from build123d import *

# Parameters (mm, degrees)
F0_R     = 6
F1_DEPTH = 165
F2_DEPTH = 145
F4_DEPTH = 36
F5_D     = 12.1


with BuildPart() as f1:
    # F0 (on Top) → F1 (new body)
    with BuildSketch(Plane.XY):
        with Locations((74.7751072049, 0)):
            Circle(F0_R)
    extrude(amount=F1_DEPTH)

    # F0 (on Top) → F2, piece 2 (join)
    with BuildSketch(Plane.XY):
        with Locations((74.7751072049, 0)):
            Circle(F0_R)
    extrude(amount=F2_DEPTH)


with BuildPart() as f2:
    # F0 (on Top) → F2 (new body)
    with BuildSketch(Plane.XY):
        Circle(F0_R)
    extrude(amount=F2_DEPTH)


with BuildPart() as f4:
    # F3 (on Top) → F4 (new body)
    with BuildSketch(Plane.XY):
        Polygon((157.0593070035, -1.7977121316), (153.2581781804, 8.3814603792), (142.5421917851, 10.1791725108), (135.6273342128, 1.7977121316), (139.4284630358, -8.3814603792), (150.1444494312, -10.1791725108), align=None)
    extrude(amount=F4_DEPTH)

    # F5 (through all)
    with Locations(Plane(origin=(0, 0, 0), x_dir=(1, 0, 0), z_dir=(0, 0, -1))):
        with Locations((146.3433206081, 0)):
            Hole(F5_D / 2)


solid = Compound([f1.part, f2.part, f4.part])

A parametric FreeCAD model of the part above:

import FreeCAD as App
import Part
import Sketcher
from FreeCAD import Vector
Q = App.Units.Quantity

doc = App.newDocument("Part")
body = doc.addObject("PartDesign::Body", "Body")

# Sketch on XY plane
sketch1 = body.newObject("Sketcher::SketchObject", "Sketch")
sketch1.AttachmentSupport = (doc.getObject("XY_Plane"), [""])
sketch1.MapMode = "FlatFace"
sketch1.addGeometry(Part.Circle(Vector(75, 0, 0), Vector(0, 0, 1), 6), False)
sketch1.addConstraint(Sketcher.Constraint("PointOnObject", 0, 3, -1))
sketch1.addConstraint(Sketcher.Constraint("Diameter", 0, Q("12 mm")))
sketch1.addConstraint(Sketcher.Constraint("DistanceX", -1, 1, 0, 3, Q("74.775107 mm")))
pad1 = body.newObject("PartDesign::Pad", "Pad")
pad1.Profile = sketch1
pad1.Length = 165

# Sketch on XY plane
sketch2 = body.newObject("Sketcher::SketchObject", "Sketch001")
sketch2.AttachmentSupport = (doc.getObject("XY_Plane"), [""])
sketch2.MapMode = "FlatFace"
sketch2.addGeometry(Part.Circle(Vector(75, 0, 0), Vector(0, 0, 1), 6), False)
sketch2.addConstraint(Sketcher.Constraint("PointOnObject", 0, 3, -1))
sketch2.addConstraint(Sketcher.Constraint("Diameter", 0, Q("12 mm")))
sketch2.addConstraint(Sketcher.Constraint("DistanceX", -1, 1, 0, 3, Q("74.775107 mm")))
pad2 = body.newObject("PartDesign::Pad", "Pad001")
pad2.Profile = sketch2
pad2.Length = 145
body2 = doc.addObject("PartDesign::Body", "Body001")

# Sketch on XY plane
sketch3 = body2.newObject("Sketcher::SketchObject", "Sketch002")
sketch3.AttachmentSupport = (doc.getObject("XY_Plane001"), [""])
sketch3.MapMode = "FlatFace"
sketch3.addGeometry(Part.Circle(Vector(0, 0, 0), Vector(0, 0, 1), 6), False)
sketch3.addConstraint(Sketcher.Constraint("Coincident", 0, 3, -1, 1))
sketch3.addConstraint(Sketcher.Constraint("Diameter", 0, Q("12 mm")))
pad3 = body2.newObject("PartDesign::Pad", "Pad002")
pad3.Profile = sketch3
pad3.Length = 145
body3 = doc.addObject("PartDesign::Body", "Body002")

# Sketch on XY plane
sketch4 = body3.newObject("Sketcher::SketchObject", "Sketch003")
sketch4.AttachmentSupport = (doc.getObject("XY_Plane002"), [""])
sketch4.MapMode = "FlatFace"
sketch4.addGeometry(Part.LineSegment(Vector(157, -2, 0), Vector(153, 8, 0)), False)
sketch4.addGeometry(Part.LineSegment(Vector(153, 8, 0), Vector(143, 10, 0)), False)
sketch4.addGeometry(Part.LineSegment(Vector(143, 10, 0), Vector(136, 2, 0)), False)
sketch4.addGeometry(Part.LineSegment(Vector(136, 2, 0), Vector(139, -8, 0)), False)
sketch4.addGeometry(Part.LineSegment(Vector(139, -8, 0), Vector(150, -10, 0)), False)
sketch4.addGeometry(Part.LineSegment(Vector(150, -10, 0), Vector(157, -2, 0)), False)
sketch4.addConstraint(Sketcher.Constraint("Coincident", 0, 2, 1, 1))
sketch4.addConstraint(Sketcher.Constraint("Coincident", 1, 2, 2, 1))
sketch4.addConstraint(Sketcher.Constraint("Coincident", 2, 2, 3, 1))
sketch4.addConstraint(Sketcher.Constraint("Coincident", 3, 2, 4, 1))
sketch4.addConstraint(Sketcher.Constraint("Coincident", 4, 2, 5, 1))
sketch4.addConstraint(Sketcher.Constraint("Coincident", 5, 2, 0, 1))
sketch4.addConstraint(Sketcher.Constraint("Parallel", 0, 3))
sketch4.addConstraint(Sketcher.Constraint("Parallel", 1, 4))
sketch4.addConstraint(Sketcher.Constraint("Parallel", 2, 5))
sketch4.addConstraint(Sketcher.Constraint("Equal", 0, 1))
sketch4.addConstraint(Sketcher.Constraint("Equal", 1, 2))
sketch4.addConstraint(Sketcher.Constraint("Equal", 2, 3))
sketch4.addConstraint(Sketcher.Constraint("DistanceX", -1, 1, 0, 2, Q("153.258178 mm")))
sketch4.addConstraint(Sketcher.Constraint("DistanceY", -1, 1, 0, 2, Q("8.38146 mm")))
sketch4.addConstraint(Sketcher.Constraint("DistanceX", -1, 1, 1, 2, Q("142.542192 mm")))
sketch4.addConstraint(Sketcher.Constraint("DistanceY", 3, 2, -1, 1, Q("8.38146 mm")))
sketch4.addConstraint(Sketcher.Constraint("DistanceX", -1, 1, 4, 2, Q("150.144449 mm")))
sketch4.addConstraint(Sketcher.Constraint("DistanceY", 2, 2, 1, 2, Q("8.38146 mm")))
pad4 = body3.newObject("PartDesign::Pad", "Pad003")
pad4.Profile = sketch4
pad4.Length = 36

# Sketch on XY plane
sketch5 = body3.newObject("Sketcher::SketchObject", "Sketch004")
sketch5.AttachmentSupport = (doc.getObject("XY_Plane002"), [""])
sketch5.MapMode = "FlatFace"
sketch5.addGeometry(Part.Circle(Vector(146, 0, 0), Vector(0, 0, 1), 6), False)
sketch5.addConstraint(Sketcher.Constraint("PointOnObject", 0, 3, -1))
sketch5.addConstraint(Sketcher.Constraint("Diameter", 0, Q("12.1 mm")))
sketch5.addConstraint(Sketcher.Constraint("DistanceX", -1, 1, 0, 3, Q("146.343321 mm")))
doc.recompute()
hole = body3.newObject("PartDesign::Hole", "Hole")
hole.Profile = sketch5
hole.ThreadType = "None"
hole.Diameter = 12.1
hole.DepthType = "ThroughAll"
hole.Reversed = True

doc.recompute()
